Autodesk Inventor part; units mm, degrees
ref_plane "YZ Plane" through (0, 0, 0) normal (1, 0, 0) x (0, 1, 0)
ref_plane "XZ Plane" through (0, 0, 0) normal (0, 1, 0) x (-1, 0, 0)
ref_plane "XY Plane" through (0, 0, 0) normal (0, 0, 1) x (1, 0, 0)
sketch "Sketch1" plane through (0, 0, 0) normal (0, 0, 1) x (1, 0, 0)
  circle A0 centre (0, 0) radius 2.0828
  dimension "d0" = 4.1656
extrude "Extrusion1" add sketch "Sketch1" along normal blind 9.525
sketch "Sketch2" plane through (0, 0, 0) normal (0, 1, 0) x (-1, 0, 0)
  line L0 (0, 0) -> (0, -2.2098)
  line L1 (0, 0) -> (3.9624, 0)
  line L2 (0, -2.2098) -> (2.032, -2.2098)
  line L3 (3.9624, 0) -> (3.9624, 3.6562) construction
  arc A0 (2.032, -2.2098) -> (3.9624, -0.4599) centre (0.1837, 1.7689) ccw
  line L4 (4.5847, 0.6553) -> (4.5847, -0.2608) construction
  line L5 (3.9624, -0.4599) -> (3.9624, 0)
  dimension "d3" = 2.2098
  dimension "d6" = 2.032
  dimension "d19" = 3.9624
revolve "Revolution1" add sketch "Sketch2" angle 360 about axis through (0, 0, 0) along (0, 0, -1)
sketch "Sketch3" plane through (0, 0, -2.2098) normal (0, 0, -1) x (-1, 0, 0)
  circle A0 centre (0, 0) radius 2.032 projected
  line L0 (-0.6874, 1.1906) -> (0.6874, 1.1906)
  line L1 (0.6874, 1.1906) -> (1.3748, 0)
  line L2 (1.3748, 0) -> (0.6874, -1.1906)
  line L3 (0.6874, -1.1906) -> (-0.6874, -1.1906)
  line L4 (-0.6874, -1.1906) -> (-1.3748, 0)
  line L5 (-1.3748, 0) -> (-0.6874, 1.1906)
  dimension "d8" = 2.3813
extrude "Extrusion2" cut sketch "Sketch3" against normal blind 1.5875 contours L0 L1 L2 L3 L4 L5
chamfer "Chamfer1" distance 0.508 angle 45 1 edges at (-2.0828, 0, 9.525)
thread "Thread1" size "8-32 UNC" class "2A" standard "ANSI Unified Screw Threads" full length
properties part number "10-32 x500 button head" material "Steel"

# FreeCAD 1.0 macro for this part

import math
import FreeCAD as App
import Part
import Sketcher

V = App.Vector
Q = App.Units.Quantity


def edges_at(feature, points):
    """Names of the edges that pass closest to the given points."""
    edges = feature.Shape.Edges
    near = lambda p: min(range(len(edges)), key=lambda i: edges[i].distToShape(Part.Vertex(*p))[0])
    return sorted({f"Edge{near(p) + 1}" for p in points})


def add_polygon(sketch, points):
    """Adds a closed chain of lines whose ends are joined by coincident constraints."""
    first, n = sketch.GeometryCount, len(points)
    for a, b in zip(points, points[1:] + points[:1]):
        sketch.addGeometry(Part.LineSegment(App.Vector(*a, 0), App.Vector(*b, 0)), False)
    for i in range(n):
        sketch.addConstraint(Sketcher.Constraint("Coincident", first + i, 2, first + (i + 1) % n, 1))

doc = App.newDocument("Part")
body = doc.addObject("PartDesign::Body", "Body")

# Sketch on XY plane
sketch1 = body.newObject("Sketcher::SketchObject", "Sketch")
sketch1.AttachmentSupport = (doc.getObject("XY_Plane"), [""])
sketch1.MapMode = "FlatFace"
sketch1.addGeometry(Part.Circle(V(0, 0, 0), V(0, 0, 1), 2.1), False)
sketch1.addConstraint([
    Sketcher.Constraint("Coincident", 0, 3, -1, 1),
    Sketcher.Constraint("Diameter", 0, Q("0.164 in")),
])
pad1 = body.newObject("PartDesign::Pad", "Pad")
pad1.Profile = sketch1
pad1.Length = Q("0.375 in")

# Sketch on XZ plane
sketch2 = body.newObject("Sketcher::SketchObject", "Sketch001")
sketch2.AttachmentSupport = (doc.getObject("XZ_Plane"), [""])
sketch2.MapMode = "FlatFace"
sketch2.addGeometry([
    Part.LineSegment(V(-3.96, 0, 0), V(0, 0, 0)),  # 0
    Part.LineSegment(V(0, 0, 0), V(0, -2.21, 0)),  # 1
    Part.LineSegment(V(0, -2.21, 0), V(-2.03, -2.21, 0)),  # 2
    Part.ArcOfCircle(Part.Circle(V(-0.18, 1.77, 0), V(0, 0, 1), 4.39), math.radians(-149), math.radians(-115)),  # 3
    Part.LineSegment(V(-3.96, -0.46, 0), V(-3.96, 0, 0)),  # 4
], False)
sketch2.addConstraint([
    Sketcher.Constraint("Coincident", 0, 2, 1, 1),
    Sketcher.Constraint("Coincident", 1, 2, 2, 1),
    Sketcher.Constraint("Coincident", 2, 2, 3, 2),
    Sketcher.Constraint("Coincident", 3, 1, 4, 1),
    Sketcher.Constraint("Coincident", 4, 2, 0, 1),
    Sketcher.Constraint("Horizontal", 0),
    Sketcher.Constraint("Vertical", 1),
    Sketcher.Constraint("Horizontal", 2),
    Sketcher.Constraint("Vertical", 4),
    Sketcher.Constraint("Coincident", 0, 2, -1, 1),
    Sketcher.Constraint("DistanceX", 2, 2, 2, 1, Q("0.08 in")),
    Sketcher.Constraint("DistanceX", 0, 1, 0, 2, Q("0.156 in")),
    Sketcher.Constraint("DistanceY", 1, 2, 1, 1, Q("0.087 in")),
    Sketcher.Constraint("Radius", 3, Q("4.387 mm")),
    Sketcher.Constraint("DistanceY", 4, 1, 4, 2, Q("0.0181 in")),
])
revolution = body.newObject("PartDesign::Revolution", "Revolution")
revolution.Profile = sketch2
revolution.ReferenceAxis = (sketch2, ["V_Axis"])
revolution.Angle = 360

# Sketch on XY plane
sketch3 = body.newObject("Sketcher::SketchObject", "Sketch002")
sketch3.AttachmentSupport = (doc.getObject("XY_Plane"), [""])
sketch3.MapMode = "FlatFace"
sketch3.AttachmentOffset = App.Placement(V(0, 0, -0.087 * 25.4), App.Rotation())
add_polygon(sketch3, [(-0.7, 1.2), (0.7, 1.2), (1.4, 0), (0.7, -1.2), (-0.7, -1.2), (-1.4, 0)])  # lines 0-5
sketch3.addConstraint([
    Sketcher.Constraint("Horizontal", 0),
    Sketcher.Constraint("Horizontal", 3),
    Sketcher.Constraint("Symmetric", 0, 2, 3, 2, -1, 1),
    Sketcher.Constraint("Symmetric", 1, 2, 4, 2, -1, 1),
    Sketcher.Constraint("PointOnObject", 1, 2, -1),
    Sketcher.Constraint("Parallel", 2, 5),
    Sketcher.Constraint("Vertical", 0, 2, 2, 2),
    Sketcher.Constraint("Angle", 1, Q("-59.9998 deg")),
    Sketcher.Constraint("DistanceY", 2, 2, 0, 2, Q("0.093748 in")),
    Sketcher.Constraint("DistanceX", 0, 1, 0, 2, Q("1.3748 mm")),
])
pocket1 = body.newObject("PartDesign::Pocket", "Pocket")
pocket1.Profile = sketch3
pocket1.Length = Q("0.0625 in")
pocket1.Reversed = True
doc.recompute()

chamfer = body.newObject("PartDesign::Chamfer", "Chamfer")
chamfer.Base = (pocket1, edges_at(pocket1, [(-2.083, 0, 9.525)]))
chamfer.Size = Q("0.02 in")

doc.recompute()
